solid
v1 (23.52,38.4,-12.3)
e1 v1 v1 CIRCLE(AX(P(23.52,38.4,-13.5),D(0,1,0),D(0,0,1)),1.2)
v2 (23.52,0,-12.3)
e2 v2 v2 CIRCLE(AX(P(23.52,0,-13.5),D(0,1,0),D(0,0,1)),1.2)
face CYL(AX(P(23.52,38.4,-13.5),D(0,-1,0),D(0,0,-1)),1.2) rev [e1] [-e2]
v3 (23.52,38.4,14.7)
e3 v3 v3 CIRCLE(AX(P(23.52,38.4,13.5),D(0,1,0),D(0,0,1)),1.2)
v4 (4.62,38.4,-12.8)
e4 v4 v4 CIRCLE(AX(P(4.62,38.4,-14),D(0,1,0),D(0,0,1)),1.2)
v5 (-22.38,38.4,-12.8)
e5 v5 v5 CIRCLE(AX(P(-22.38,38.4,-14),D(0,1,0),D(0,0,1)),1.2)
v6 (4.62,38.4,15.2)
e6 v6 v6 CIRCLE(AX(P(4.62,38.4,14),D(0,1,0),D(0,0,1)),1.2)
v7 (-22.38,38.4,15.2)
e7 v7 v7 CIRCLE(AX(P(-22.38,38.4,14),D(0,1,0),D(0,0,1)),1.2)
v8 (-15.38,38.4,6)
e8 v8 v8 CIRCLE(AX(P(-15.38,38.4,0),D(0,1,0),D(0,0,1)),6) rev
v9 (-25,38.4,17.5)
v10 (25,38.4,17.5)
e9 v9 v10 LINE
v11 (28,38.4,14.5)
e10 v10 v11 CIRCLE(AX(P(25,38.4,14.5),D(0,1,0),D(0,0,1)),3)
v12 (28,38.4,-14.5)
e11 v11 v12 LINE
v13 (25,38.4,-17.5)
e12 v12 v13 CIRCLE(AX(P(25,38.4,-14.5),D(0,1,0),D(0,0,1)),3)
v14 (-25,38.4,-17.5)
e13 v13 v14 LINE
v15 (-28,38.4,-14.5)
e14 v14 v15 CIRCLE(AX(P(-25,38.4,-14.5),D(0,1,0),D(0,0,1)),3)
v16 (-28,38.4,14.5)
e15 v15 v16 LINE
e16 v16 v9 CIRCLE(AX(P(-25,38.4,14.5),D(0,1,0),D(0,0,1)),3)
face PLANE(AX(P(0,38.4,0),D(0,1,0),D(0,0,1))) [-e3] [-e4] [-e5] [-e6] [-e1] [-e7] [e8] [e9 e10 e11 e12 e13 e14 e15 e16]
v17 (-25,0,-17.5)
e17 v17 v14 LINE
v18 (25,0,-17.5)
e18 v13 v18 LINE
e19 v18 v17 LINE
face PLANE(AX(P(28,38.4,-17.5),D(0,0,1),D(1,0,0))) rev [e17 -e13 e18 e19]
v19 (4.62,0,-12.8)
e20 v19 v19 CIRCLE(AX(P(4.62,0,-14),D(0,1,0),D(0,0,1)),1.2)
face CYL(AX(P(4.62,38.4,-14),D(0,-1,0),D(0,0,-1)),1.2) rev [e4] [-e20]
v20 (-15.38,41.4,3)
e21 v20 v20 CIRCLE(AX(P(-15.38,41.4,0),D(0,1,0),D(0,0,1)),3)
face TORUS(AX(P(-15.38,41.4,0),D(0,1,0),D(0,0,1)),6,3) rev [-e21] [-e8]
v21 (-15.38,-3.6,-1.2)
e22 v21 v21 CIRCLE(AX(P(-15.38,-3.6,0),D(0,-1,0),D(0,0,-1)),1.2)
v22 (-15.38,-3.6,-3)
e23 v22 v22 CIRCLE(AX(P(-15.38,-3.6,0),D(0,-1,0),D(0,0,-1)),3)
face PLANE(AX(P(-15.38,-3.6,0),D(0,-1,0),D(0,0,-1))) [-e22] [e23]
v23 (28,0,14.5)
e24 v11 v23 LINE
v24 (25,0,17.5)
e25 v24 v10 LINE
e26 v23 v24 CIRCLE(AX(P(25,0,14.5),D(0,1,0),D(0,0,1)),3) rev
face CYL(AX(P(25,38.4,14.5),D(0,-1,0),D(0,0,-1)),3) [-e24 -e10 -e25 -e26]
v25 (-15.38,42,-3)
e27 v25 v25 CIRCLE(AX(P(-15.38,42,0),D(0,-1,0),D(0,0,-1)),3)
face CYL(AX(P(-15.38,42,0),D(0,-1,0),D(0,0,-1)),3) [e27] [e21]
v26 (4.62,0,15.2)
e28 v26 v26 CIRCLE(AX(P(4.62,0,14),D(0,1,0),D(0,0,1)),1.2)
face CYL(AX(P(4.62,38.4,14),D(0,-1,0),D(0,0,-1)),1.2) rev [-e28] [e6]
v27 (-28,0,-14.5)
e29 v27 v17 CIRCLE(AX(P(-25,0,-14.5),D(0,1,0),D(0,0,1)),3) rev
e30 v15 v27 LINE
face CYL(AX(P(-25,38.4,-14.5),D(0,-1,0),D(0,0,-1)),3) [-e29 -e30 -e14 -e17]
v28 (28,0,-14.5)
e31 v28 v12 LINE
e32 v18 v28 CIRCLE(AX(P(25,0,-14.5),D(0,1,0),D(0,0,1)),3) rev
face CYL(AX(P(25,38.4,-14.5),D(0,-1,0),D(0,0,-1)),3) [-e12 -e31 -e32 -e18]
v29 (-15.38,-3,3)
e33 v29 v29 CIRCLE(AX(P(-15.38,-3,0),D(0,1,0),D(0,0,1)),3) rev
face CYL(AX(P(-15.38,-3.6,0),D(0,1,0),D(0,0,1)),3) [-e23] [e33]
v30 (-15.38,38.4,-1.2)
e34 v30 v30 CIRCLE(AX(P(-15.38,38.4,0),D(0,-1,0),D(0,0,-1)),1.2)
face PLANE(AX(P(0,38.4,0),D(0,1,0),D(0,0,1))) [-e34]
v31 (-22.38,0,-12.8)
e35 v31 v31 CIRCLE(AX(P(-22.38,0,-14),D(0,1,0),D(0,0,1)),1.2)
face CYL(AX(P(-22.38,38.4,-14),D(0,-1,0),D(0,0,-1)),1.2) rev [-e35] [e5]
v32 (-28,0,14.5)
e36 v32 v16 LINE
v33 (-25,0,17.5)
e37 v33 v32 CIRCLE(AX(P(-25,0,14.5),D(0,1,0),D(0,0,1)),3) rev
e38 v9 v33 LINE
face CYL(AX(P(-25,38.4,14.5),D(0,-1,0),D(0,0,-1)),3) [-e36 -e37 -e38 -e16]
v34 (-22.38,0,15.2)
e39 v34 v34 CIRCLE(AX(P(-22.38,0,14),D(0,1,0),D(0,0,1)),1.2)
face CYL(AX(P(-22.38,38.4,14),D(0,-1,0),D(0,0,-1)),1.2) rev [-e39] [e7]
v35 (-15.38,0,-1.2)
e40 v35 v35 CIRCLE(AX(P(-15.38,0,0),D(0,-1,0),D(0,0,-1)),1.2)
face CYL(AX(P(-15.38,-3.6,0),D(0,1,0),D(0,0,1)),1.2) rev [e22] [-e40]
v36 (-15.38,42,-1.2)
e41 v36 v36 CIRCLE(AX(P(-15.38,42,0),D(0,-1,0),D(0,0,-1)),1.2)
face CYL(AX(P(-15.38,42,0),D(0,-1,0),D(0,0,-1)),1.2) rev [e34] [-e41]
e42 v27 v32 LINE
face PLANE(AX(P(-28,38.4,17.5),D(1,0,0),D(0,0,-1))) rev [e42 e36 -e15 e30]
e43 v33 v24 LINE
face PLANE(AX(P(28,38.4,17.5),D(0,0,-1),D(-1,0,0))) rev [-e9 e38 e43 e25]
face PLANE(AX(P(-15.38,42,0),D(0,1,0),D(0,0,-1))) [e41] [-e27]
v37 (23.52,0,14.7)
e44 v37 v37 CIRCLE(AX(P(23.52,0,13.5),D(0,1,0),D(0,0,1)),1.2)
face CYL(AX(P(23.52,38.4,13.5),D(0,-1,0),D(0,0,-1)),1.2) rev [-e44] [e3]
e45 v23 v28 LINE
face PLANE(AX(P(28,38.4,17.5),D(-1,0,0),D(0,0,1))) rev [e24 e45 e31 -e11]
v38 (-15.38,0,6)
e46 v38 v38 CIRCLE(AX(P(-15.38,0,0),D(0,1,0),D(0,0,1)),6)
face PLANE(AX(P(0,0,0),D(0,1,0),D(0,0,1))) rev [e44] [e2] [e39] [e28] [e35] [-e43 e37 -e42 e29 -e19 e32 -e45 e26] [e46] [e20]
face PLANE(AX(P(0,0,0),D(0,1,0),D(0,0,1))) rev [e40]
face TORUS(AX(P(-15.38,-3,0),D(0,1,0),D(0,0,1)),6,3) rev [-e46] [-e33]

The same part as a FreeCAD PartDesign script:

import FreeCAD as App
import Part
import Sketcher
Q = App.Units.Quantity


def edges_at(feature, points):
    """Names of the edges that pass closest to the given points."""
    edges = feature.Shape.Edges
    near = lambda p: min(range(len(edges)), key=lambda i: edges[i].distToShape(Part.Vertex(*p))[0])
    return sorted({f"Edge{near(p) + 1}" for p in points})

doc = App.newDocument("Part")
body = doc.addObject("PartDesign::Body", "Body")

sketch1 = body.newObject("Sketcher::SketchObject", "Sketch")
sketch1.AttachmentSupport = (doc.getObject("XZ_Plane"), [""])
sketch1.MapMode = "FlatFace"
sketch1.addGeometry([
    Part.LineSegment(App.Vector(-28, -17.5, 0), App.Vector(-28, 17.5, 0)),
    Part.LineSegment(App.Vector(-28, 17.5, 0), App.Vector(28, 17.5, 0)),
    Part.LineSegment(App.Vector(28, 17.5, 0), App.Vector(28, -17.5, 0)),
    Part.LineSegment(App.Vector(28, -17.5, 0), App.Vector(-28, -17.5, 0)),
    Part.Circle(App.Vector(-22.4, 14, 0), App.Vector(0, 0, 1), 1.2),
    Part.Circle(App.Vector(4.6, 14, 0), App.Vector(0, 0, 1), 1.2),
    Part.Circle(App.Vector(23.5, 13.5, 0), App.Vector(0, 0, 1), 1.2),
    Part.Circle(App.Vector(-22.4, -14, 0), App.Vector(0, 0, 1), 1.2),
    Part.Circle(App.Vector(4.6, -14, 0), App.Vector(0, 0, 1), 1.2),
    Part.Circle(App.Vector(23.5, -13.5, 0), App.Vector(0, 0, 1), 1.2),
], False)
sketch1.addConstraint([
    Sketcher.Constraint("Coincident", 0, 2, 1, 1),
    Sketcher.Constraint("Coincident", 1, 2, 2, 1),
    Sketcher.Constraint("Coincident", 2, 2, 3, 1),
    Sketcher.Constraint("Coincident", 3, 2, 0, 1),
    Sketcher.Constraint("Vertical", 0),
    Sketcher.Constraint("Horizontal", 1),
    Sketcher.Constraint("Vertical", 2),
    Sketcher.Constraint("Horizontal", 3),
    Sketcher.Constraint("Equal", 4, 5),
    Sketcher.Constraint("Equal", 5, 6),
    Sketcher.Constraint("Equal", 6, 7),
    Sketcher.Constraint("Equal", 7, 8),
    Sketcher.Constraint("Equal", 8, 9),
    Sketcher.Constraint("Symmetric", 0, 2, 2, 2, -1, 1),
    Sketcher.Constraint("Symmetric", 4, 3, 7, 3, -1),
    Sketcher.Constraint("Symmetric", 5, 3, 8, 3, -1),
    Sketcher.Constraint("Symmetric", 6, 3, 9, 3, -1),
    Sketcher.Constraint("Horizontal", 4, 3, 5, 3),
    Sketcher.Constraint("Diameter", 4, Q("2.4 mm")),
    Sketcher.Constraint("DistanceX", 1, 1, 1, 2, Q("56 mm")),
    Sketcher.Constraint("DistanceY", 0, 1, 0, 2, Q("35 mm")),
    Sketcher.Constraint("DistanceY", -1, 1, 4, 3, Q("14 mm")),
    Sketcher.Constraint("DistanceX", 4, 3, 5, 3, Q("27 mm")),
    Sketcher.Constraint("DistanceY", 9, 3, 6, 3, Q("27 mm")),
    Sketcher.Constraint("DistanceX", 5, 3, 6, 3, Q("18.9 mm")),
    Sketcher.Constraint("DistanceX", 4, 3, -1, 1, Q("22.38 mm")),
])
pad1 = body.newObject("PartDesign::Pad", "Pad")
pad1.Profile = sketch1
pad1.Length = 38.4
pad1.Reversed = True

sketch2 = body.newObject("Sketcher::SketchObject", "Sketch001")
sketch2.AttachmentSupport = (doc.getObject("XZ_Plane"), [""])
sketch2.MapMode = "FlatFace"
sketch2.addGeometry([
    Part.Circle(App.Vector(-15.4, 0, 0), App.Vector(0, 0, 1), 3),
    Part.Circle(App.Vector(-15.4, 0, 0), App.Vector(0, 0, 1), 1.2),
], False)
sketch2.addConstraint([
    Sketcher.Constraint("Coincident", 1, 3, 0, 3),
    Sketcher.Constraint("PointOnObject", 0, 3, -1),
    Sketcher.Constraint("Diameter", 0, Q("6 mm")),
    Sketcher.Constraint("Diameter", 1, Q("2.4 mm")),
    Sketcher.Constraint("DistanceX", 0, 3, -1, 1, Q("15.38 mm")),
])
pad2 = body.newObject("PartDesign::Pad", "Pad001")
pad2.Profile = sketch2
pad2.Length = 3.6
doc.recompute()

datumplane = body.newObject("PartDesign::Plane", "DatumPlane")
datumplane.AttachmentSupport = (doc.getObject("XZ_Plane"), [""])
datumplane.MapMode = "FlatFace"
datumplane.AttachmentOffset = App.Placement(App.Vector(0, 0, -19.2), App.Rotation())
mirrored = body.newObject("PartDesign::Mirrored", "Mirrored")
mirrored.Originals = [pad2]
mirrored.MirrorPlane = (datumplane, [""])
body.Tip = mirrored
doc.recompute()

fillet = body.newObject("PartDesign::Fillet", "Fillet")
fillet.Base = (mirrored, edges_at(mirrored, [
    (-15.38, 0, -3),
    (-15.38, 38.4, -3),
    (-28, 19.2, -17.5),
    (28, 19.2, -17.5),
    (28, 19.2, 17.5),
    (-28, 19.2, 17.5),
]))
fillet.Radius = 3

doc.recompute()
